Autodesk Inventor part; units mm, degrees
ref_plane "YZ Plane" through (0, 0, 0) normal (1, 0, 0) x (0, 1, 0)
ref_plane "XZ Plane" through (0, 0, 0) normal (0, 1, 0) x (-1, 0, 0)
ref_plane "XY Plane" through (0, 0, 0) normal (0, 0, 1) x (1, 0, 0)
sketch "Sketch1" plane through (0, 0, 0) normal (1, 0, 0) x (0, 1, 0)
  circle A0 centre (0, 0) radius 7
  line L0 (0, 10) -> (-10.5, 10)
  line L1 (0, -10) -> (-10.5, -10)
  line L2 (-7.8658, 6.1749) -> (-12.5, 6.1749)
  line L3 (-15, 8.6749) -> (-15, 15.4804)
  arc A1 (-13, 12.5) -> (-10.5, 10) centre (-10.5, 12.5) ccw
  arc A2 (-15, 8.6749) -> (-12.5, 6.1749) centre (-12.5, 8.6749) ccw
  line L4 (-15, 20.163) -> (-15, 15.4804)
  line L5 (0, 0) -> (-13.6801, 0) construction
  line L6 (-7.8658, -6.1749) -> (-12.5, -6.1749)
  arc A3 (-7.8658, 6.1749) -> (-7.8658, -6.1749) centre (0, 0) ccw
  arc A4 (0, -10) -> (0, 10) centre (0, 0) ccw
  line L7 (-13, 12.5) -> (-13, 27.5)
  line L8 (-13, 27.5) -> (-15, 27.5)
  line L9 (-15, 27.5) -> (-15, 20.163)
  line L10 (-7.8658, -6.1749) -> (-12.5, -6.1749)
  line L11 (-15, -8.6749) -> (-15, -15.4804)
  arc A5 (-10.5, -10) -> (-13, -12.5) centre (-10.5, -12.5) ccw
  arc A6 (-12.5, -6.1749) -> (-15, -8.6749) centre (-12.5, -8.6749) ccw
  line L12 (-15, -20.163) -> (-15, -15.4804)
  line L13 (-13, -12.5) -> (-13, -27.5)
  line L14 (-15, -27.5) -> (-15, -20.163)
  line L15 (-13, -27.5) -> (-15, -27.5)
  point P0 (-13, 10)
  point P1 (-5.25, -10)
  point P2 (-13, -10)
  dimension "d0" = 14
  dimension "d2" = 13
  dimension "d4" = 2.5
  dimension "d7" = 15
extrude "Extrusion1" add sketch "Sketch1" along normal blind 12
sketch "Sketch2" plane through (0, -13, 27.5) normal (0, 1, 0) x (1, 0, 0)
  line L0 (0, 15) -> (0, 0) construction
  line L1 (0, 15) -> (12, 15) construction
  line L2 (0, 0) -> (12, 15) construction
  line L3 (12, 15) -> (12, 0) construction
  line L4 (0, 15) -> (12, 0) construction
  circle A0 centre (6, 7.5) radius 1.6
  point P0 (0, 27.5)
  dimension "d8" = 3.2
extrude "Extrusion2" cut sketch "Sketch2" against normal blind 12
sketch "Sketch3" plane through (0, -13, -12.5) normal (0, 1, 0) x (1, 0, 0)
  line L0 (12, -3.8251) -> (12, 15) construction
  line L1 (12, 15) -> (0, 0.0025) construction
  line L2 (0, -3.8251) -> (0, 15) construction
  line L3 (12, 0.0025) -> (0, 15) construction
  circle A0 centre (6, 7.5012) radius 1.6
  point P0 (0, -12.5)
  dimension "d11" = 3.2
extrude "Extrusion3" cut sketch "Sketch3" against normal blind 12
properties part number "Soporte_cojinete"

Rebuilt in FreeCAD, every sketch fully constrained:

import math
import FreeCAD as App
import Part
import Sketcher

V = App.Vector
Q = App.Units.Quantity

doc = App.newDocument("Part")
body = doc.addObject("PartDesign::Body", "Body")

# Sketch on YZ plane
sketch1 = body.newObject("Sketcher::SketchObject", "Sketch")
sketch1.AttachmentSupport = (doc.getObject("YZ_Plane"), [""])
sketch1.MapMode = "FlatFace"
sketch1.addGeometry([
    Part.ArcOfCircle(Part.Circle(V(0, 0, 0), V(0, 0, 1), 10), math.radians(-90), math.radians(90)),  # 0
    Part.LineSegment(V(0, 10, 0), V(-10.5, 10, 0)),  # 1
    Part.ArcOfCircle(Part.Circle(V(-10.5, 12.5, 0), V(0, 0, 1), 2.5), math.radians(180), math.radians(270)),  # 2
    Part.LineSegment(V(-13, 12.5, 0), V(-13, 27.5, 0)),  # 3
    Part.LineSegment(V(-13, 27.5, 0), V(-15, 27.5, 0)),  # 4
    Part.LineSegment(V(-15, 27.5, 0), V(-15, 8.7, 0)),  # 5
    Part.ArcOfCircle(Part.Circle(V(-12.5, 8.7, 0), V(0, 0, 1), 2.5), math.radians(180), math.radians(270)),  # 6
    Part.LineSegment(V(-12.5, 6.2, 0), V(-7.9, 6.2, 0)),  # 7
    Part.ArcOfCircle(Part.Circle(V(0, 0, 0), V(0, 0, 1), 10), math.radians(142), math.radians(218)),  # 8
    Part.LineSegment(V(-7.9, -6.2, 0), V(-12.5, -6.2, 0)),  # 9
    Part.ArcOfCircle(Part.Circle(V(-12.5, -8.7, 0), V(0, 0, 1), 2.5), math.radians(90), math.radians(180)),  # 10
    Part.LineSegment(V(-15, -8.7, 0), V(-15, -27.5, 0)),  # 11
    Part.LineSegment(V(-15, -27.5, 0), V(-13, -27.5, 0)),  # 12
    Part.LineSegment(V(-13, -27.5, 0), V(-13, -12.5, 0)),  # 13
    Part.ArcOfCircle(Part.Circle(V(-10.5, -12.5, 0), V(0, 0, 1), 2.5), math.radians(90), math.radians(180)),  # 14
    Part.LineSegment(V(-10.5, -10, 0), V(0, -10, 0)),  # 15
    Part.Circle(V(0, 0, 0), V(0, 0, 1), 7),  # 16
], False)
sketch1.addConstraint([
    Sketcher.Constraint("Tangent", 0, 2, 1, 1),
    Sketcher.Constraint("Tangent", 1, 2, 2, 2),
    Sketcher.Constraint("Tangent", 2, 1, 3, 1),
    Sketcher.Constraint("Coincident", 3, 2, 4, 1),
    Sketcher.Constraint("Coincident", 4, 2, 5, 1),
    Sketcher.Constraint("Tangent", 5, 2, 6, 1),
    Sketcher.Constraint("Tangent", 6, 2, 7, 1),
    Sketcher.Constraint("Coincident", 7, 2, 8, 1),
    Sketcher.Constraint("Coincident", 8, 2, 9, 1),
    Sketcher.Constraint("Tangent", 9, 2, 10, 1),
    Sketcher.Constraint("Tangent", 10, 2, 11, 1),
    Sketcher.Constraint("Coincident", 11, 2, 12, 1),
    Sketcher.Constraint("Coincident", 12, 2, 13, 1),
    Sketcher.Constraint("Tangent", 13, 2, 14, 2),
    Sketcher.Constraint("Tangent", 14, 1, 15, 1),
    Sketcher.Constraint("Tangent", 15, 2, 0, 1),
    Sketcher.Constraint("Horizontal", 1),
    Sketcher.Constraint("Vertical", 3),
    Sketcher.Constraint("Horizontal", 4),
    Sketcher.Constraint("Vertical", 5),
    Sketcher.Constraint("Horizontal", 7),
    Sketcher.Constraint("Horizontal", 9),
    Sketcher.Constraint("Vertical", 11),
    Sketcher.Constraint("Horizontal", 12),
    Sketcher.Constraint("Vertical", 13),
    Sketcher.Constraint("Horizontal", 15),
    Sketcher.Constraint("Coincident", 0, 3, -1, 1),
    Sketcher.Constraint("Coincident", 8, 3, -1, 1),
    Sketcher.Constraint("Coincident", 16, 3, -1, 1),
    Sketcher.Constraint("Equal", 2, 6),
    Sketcher.Constraint("Equal", 0, 8),
    Sketcher.Constraint("Equal", 6, 10),
    Sketcher.Constraint("Equal", 10, 14),
    Sketcher.Constraint("Symmetric", 6, 3, 10, 3, -1),
    Sketcher.Constraint("Symmetric", 3, 2, 12, 2, -1),
    Sketcher.Constraint("Diameter", 16, Q("14 mm")),
    Sketcher.Constraint("Radius", 2, Q("2.5 mm")),
    Sketcher.Constraint("DistanceY", 3, 1, 3, 2, Q("15 mm")),
    Sketcher.Constraint("DistanceX", 2, 1, -1, 1, Q("13 mm")),
    Sketcher.Constraint("DistanceX", 4, 2, -1, 1, Q("15 mm")),
    Sketcher.Constraint("Radius", 0, Q("10 mm")),
    Sketcher.Constraint("DistanceY", 5, 2, 5, 1, Q("18.825 mm")),
])
pad1 = body.newObject("PartDesign::Pad", "Pad")
pad1.Profile = sketch1
pad1.Length = 12

# Sketch on XZ plane
sketch2 = body.newObject("Sketcher::SketchObject", "Sketch001")
sketch2.AttachmentSupport = (doc.getObject("XZ_Plane"), [""])
sketch2.MapMode = "FlatFace"
sketch2.AttachmentOffset = App.Placement(V(0, 0, 13), App.Rotation())
sketch2.addGeometry(Part.Circle(V(6, 20, 0), V(0, 0, 1), 1.6), False)
sketch2.addConstraint([
    Sketcher.Constraint("Diameter", 0, Q("3.2 mm")),
    Sketcher.Constraint("DistanceX", -1, 1, 0, 3, Q("6 mm")),
    Sketcher.Constraint("DistanceY", -1, 1, 0, 3, Q("20 mm")),
])
pocket1 = body.newObject("PartDesign::Pocket", "Pocket")
pocket1.Profile = sketch2
pocket1.Length = 12
pocket1.Reversed = True

# Sketch on XZ plane
sketch3 = body.newObject("Sketcher::SketchObject", "Sketch002")
sketch3.AttachmentSupport = (doc.getObject("XZ_Plane"), [""])
sketch3.MapMode = "FlatFace"
sketch3.AttachmentOffset = App.Placement(V(0, 0, 13), App.Rotation())
sketch3.addGeometry(Part.Circle(V(6, -20, 0), V(0, 0, 1), 1.6), False)
sketch3.addConstraint([
    Sketcher.Constraint("Diameter", 0, Q("3.2 mm")),
    Sketcher.Constraint("DistanceX", -1, 1, 0, 3, Q("6 mm")),
    Sketcher.Constraint("DistanceY", 0, 3, -1, 1, Q("20.0012 mm")),
])
pocket2 = body.newObject("PartDesign::Pocket", "Pocket001")
pocket2.Profile = sketch3
pocket2.Length = 12
pocket2.Reversed = True

doc.recompute()
